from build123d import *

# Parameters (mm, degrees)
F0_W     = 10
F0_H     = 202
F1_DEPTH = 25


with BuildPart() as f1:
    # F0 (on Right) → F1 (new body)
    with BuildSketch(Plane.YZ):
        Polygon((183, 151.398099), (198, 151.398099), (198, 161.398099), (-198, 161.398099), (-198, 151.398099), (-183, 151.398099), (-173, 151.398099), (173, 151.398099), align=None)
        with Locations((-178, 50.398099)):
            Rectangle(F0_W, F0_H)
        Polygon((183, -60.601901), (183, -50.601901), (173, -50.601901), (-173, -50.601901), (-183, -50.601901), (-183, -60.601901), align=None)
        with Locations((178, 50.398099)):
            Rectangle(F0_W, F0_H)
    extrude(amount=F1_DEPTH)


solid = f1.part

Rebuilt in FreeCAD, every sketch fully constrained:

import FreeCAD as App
import Part
import Sketcher

V = App.Vector
Q = App.Units.Quantity


def add_polygon(sketch, points):
    """Adds a closed chain of lines whose ends are joined by coincident constraints."""
    first, n = sketch.GeometryCount, len(points)
    for a, b in zip(points, points[1:] + points[:1]):
        sketch.addGeometry(Part.LineSegment(App.Vector(*a, 0), App.Vector(*b, 0)), False)
    for i in range(n):
        sketch.addConstraint(Sketcher.Constraint("Coincident", first + i, 2, first + (i + 1) % n, 1))

doc = App.newDocument("Part")
body = doc.addObject("PartDesign::Body", "Body")

# Sketch on YZ plane
sketch1 = body.newObject("Sketcher::SketchObject", "Sketch")
sketch1.AttachmentSupport = (doc.getObject("YZ_Plane"), [""])
sketch1.MapMode = "FlatFace"
add_polygon(sketch1, [(198, 151), (198, 161), (-198, 161), (-198, 151), (-183, 151), (-183, -61), (183, -61), (183, 151)])  # lines 0-7
add_polygon(sketch1, [(173, -51), (-173, -51), (-173, 151), (173, 151)])  # lines 8-11
sketch1.addConstraint(Sketcher.Constraint("Vertical", 0))
sketch1.addConstraint(Sketcher.Constraint("Horizontal", 1))
sketch1.addConstraint(Sketcher.Constraint("Vertical", 2))
sketch1.addConstraint(Sketcher.Constraint("Horizontal", 3))
sketch1.addConstraint(Sketcher.Constraint("Vertical", 4))
sketch1.addConstraint(Sketcher.Constraint("Horizontal", 5))
sketch1.addConstraint(Sketcher.Constraint("Vertical", 6))
sketch1.addConstraint(Sketcher.Constraint("Horizontal", 7))
sketch1.addConstraint(Sketcher.Constraint("Horizontal", 8))
sketch1.addConstraint(Sketcher.Constraint("Vertical", 9))
sketch1.addConstraint(Sketcher.Constraint("Horizontal", 10))
sketch1.addConstraint(Sketcher.Constraint("Vertical", 11))
sketch1.addConstraint(Sketcher.Constraint("Symmetric", 3, 2, 6, 2, -2))
sketch1.addConstraint(Sketcher.Constraint("Horizontal", 7, 2, 9, 2))
sketch1.addConstraint(Sketcher.Constraint("Equal", 3, 7))
sketch1.addConstraint(Sketcher.Constraint("DistanceX", 1, 2, 1, 1, Q("396 mm")))
sketch1.addConstraint(Sketcher.Constraint("DistanceX", 3, 1, 3, 2, Q("15 mm")))
sketch1.addConstraint(Sketcher.Constraint("DistanceX", 8, 2, 8, 1, Q("346 mm")))
sketch1.addConstraint(Sketcher.Constraint("DistanceY", 0, 1, 0, 2, Q("10 mm")))
sketch1.addConstraint(Sketcher.Constraint("DistanceY", 4, 2, 4, 1, Q("212 mm")))
sketch1.addConstraint(Sketcher.Constraint("DistanceY", 9, 1, 9, 2, Q("202 mm")))
sketch1.addConstraint(Sketcher.Constraint("DistanceX", 8, 2, -1, 1, Q("173 mm")))
sketch1.addConstraint(Sketcher.Constraint("DistanceY", -1, 1, 0, 2, Q("161.398099 mm")))
pad1 = body.newObject("PartDesign::Pad", "Pad")
pad1.Profile = sketch1
pad1.Length = 25

doc.recompute()
